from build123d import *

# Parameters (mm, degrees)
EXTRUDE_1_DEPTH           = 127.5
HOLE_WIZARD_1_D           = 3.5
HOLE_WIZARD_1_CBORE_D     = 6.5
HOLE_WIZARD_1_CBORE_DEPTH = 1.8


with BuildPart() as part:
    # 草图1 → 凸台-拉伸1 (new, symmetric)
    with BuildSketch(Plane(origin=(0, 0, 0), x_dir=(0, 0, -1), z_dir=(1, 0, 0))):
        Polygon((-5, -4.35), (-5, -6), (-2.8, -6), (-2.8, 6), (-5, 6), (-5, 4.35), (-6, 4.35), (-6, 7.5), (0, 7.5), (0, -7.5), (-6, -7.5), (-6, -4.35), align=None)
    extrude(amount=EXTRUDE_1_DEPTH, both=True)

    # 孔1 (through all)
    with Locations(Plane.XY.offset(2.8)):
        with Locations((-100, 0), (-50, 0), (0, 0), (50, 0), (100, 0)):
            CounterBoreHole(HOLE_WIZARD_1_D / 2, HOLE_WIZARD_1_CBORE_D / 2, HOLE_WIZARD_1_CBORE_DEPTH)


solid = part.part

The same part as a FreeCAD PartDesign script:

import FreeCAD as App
import Part
import Sketcher

V = App.Vector

doc = App.newDocument("Part")
params = doc.addObject("Spreadsheet::Sheet", "Params")
for row, (alias, value) in enumerate([
    ("sketch1_width", "15 mm"),
    ("sketch1_width2", "12 mm"),
    ("sketch1_height", "1 mm"),
    ("sketch1_height2", "6 mm"),
    ("sketch1_height3", "2.2 mm"),
    ("pad1_length", "255 mm"),
    ("sketch2_diameter", "3.5 mm"),
    ("hole_diameter", "3.5 mm"),
    ("hole_cbore_diameter", "6.5 mm"),
    ("hole_cbore_depth", "1.8 mm"),
], start=1):
    params.set(f"A{row}", alias)
    params.set(f"B{row}", "=" + value)
    params.setAlias(f"B{row}", alias)

body = doc.addObject("PartDesign::Body", "Body")

sketch1 = doc.addObject("Sketcher::SketchObject", "Sketch")
body.addObject(sketch1)
sketch1.AttachmentSupport = (doc.YZ_Plane, [""])
sketch1.MapMode = "FlatFace"
sketch1.addGeometry([
    Part.LineSegment(V(-6, 5, 0), V(-4.3, 5, 0)),
    Part.LineSegment(V(-4.3, 5, 0), V(-4.3, 6, 0)),
    Part.LineSegment(V(-4.3, 6, 0), V(-7.5, 6, 0)),
    Part.LineSegment(V(-7.5, 6, 0), V(-7.5, 0, 0)),
    Part.LineSegment(V(-7.5, 0, 0), V(7.5, 0, 0)),
    Part.LineSegment(V(7.5, 0, 0), V(7.5, 6, 0)),
    Part.LineSegment(V(7.5, 6, 0), V(4.3, 6, 0)),
    Part.LineSegment(V(4.3, 6, 0), V(4.3, 5, 0)),
    Part.LineSegment(V(4.3, 5, 0), V(6, 5, 0)),
    Part.LineSegment(V(6, 5, 0), V(6, 2.8, 0)),
    Part.LineSegment(V(6, 2.8, 0), V(-6, 2.8, 0)),
    Part.LineSegment(V(-6, 2.8, 0), V(-6, 5, 0)),
], False)
sketch1.addConstraint([
    Sketcher.Constraint("Coincident", 0, 2, 1, 1),
    Sketcher.Constraint("Coincident", 1, 2, 2, 1),
    Sketcher.Constraint("Coincident", 2, 2, 3, 1),
    Sketcher.Constraint("Coincident", 3, 2, 4, 1),
    Sketcher.Constraint("Coincident", 4, 2, 5, 1),
    Sketcher.Constraint("Coincident", 5, 2, 6, 1),
    Sketcher.Constraint("Coincident", 6, 2, 7, 1),
    Sketcher.Constraint("Coincident", 7, 2, 8, 1),
    Sketcher.Constraint("Coincident", 8, 2, 9, 1),
    Sketcher.Constraint("Coincident", 9, 2, 10, 1),
    Sketcher.Constraint("Coincident", 10, 2, 11, 1),
    Sketcher.Constraint("Coincident", 11, 2, 0, 1),
    Sketcher.Constraint("Horizontal", 0),
    Sketcher.Constraint("Vertical", 1),
    Sketcher.Constraint("Horizontal", 2),
    Sketcher.Constraint("Vertical", 3),
    Sketcher.Constraint("Horizontal", 4),
    Sketcher.Constraint("Vertical", 5),
    Sketcher.Constraint("Horizontal", 6),
    Sketcher.Constraint("Vertical", 7),
    Sketcher.Constraint("Horizontal", 8),
    Sketcher.Constraint("Vertical", 9),
    Sketcher.Constraint("Horizontal", 10),
    Sketcher.Constraint("Vertical", 11),
    Sketcher.Constraint("Symmetric", 3, 2, 4, 2, -1, 1),
    Sketcher.Constraint("Symmetric", 1, 2, 6, 2, -2),
    Sketcher.Constraint("Symmetric", 8, 2, 11, 2, -2),
    Sketcher.Constraint("DistanceX", 4, 1, 4, 2, 15.0),
    Sketcher.Constraint("DistanceX", 10, 2, 10, 1, 12.0),
    Sketcher.Constraint("DistanceY", 1, 1, 1, 2, 1.0),
    Sketcher.Constraint("DistanceY", 3, 2, 3, 1, 6.0),
    Sketcher.Constraint("DistanceY", 9, 2, 9, 1, 2.2),
    Sketcher.Constraint("DistanceX", 0, 1, 0, 2, 1.65),
])
sketch1.setExpression("Constraints[27]", "Params.sketch1_width")
sketch1.setExpression("Constraints[28]", "Params.sketch1_width2")
sketch1.setExpression("Constraints[29]", "Params.sketch1_height")
sketch1.setExpression("Constraints[30]", "Params.sketch1_height2")
sketch1.setExpression("Constraints[31]", "Params.sketch1_height3")
pad1 = doc.addObject("PartDesign::Pad", "Pad")
body.addObject(pad1)
pad1.Profile = sketch1
pad1.setExpression("Length", "Params.pad1_length")
pad1.Midplane = True

sketch2 = doc.addObject("Sketcher::SketchObject", "Sketch001")
body.addObject(sketch2)
sketch2.AttachmentSupport = (doc.XY_Plane, [""])
sketch2.MapMode = "FlatFace"
sketch2.AttachmentOffset = App.Placement(V(0, 0, 2.8), App.Rotation())
sketch2.addGeometry([
    Part.Circle(V(-100, 0, 0), V(0, 0, 1), 1.8),
    Part.Circle(V(-50, 0, 0), V(0, 0, 1), 1.8),
    Part.Circle(V(0, 0, 0), V(0, 0, 1), 1.8),
    Part.Circle(V(50, 0, 0), V(0, 0, 1), 1.8),
    Part.Circle(V(100, 0, 0), V(0, 0, 1), 1.8),
], False)
sketch2.addConstraint([
    Sketcher.Constraint("Coincident", 2, 3, -1, 1),
    Sketcher.Constraint("Equal", 0, 1),
    Sketcher.Constraint("Equal", 1, 2),
    Sketcher.Constraint("Equal", 2, 3),
    Sketcher.Constraint("Equal", 3, 4),
    Sketcher.Constraint("Symmetric", 1, 3, 3, 3, -1, 1),
    Sketcher.Constraint("Symmetric", 0, 3, 4, 3, -1, 1),
    Sketcher.Constraint("PointOnObject", 0, 3, -1),
    Sketcher.Constraint("PointOnObject", 1, 3, -1),
    Sketcher.Constraint("Diameter", 0, 3.5),
    Sketcher.Constraint("DistanceX", 0, 3, -1, 1, 100.0),
    Sketcher.Constraint("DistanceX", 1, 3, -1, 1, 50.0),
])
sketch2.setExpression("Constraints[9]", "Params.sketch2_diameter")
doc.recompute()
hole = doc.addObject("PartDesign::Hole", "Hole")
body.addObject(hole)
hole.Profile = sketch2
hole.ThreadType = "None"
hole.setExpression("Diameter", "Params.hole_diameter")
hole.DepthType = "ThroughAll"
hole.HoleCutType = "Counterbore"
hole.setExpression("HoleCutDiameter", "Params.hole_cbore_diameter")
hole.setExpression("HoleCutDepth", "Params.hole_cbore_depth")

doc.recompute()
